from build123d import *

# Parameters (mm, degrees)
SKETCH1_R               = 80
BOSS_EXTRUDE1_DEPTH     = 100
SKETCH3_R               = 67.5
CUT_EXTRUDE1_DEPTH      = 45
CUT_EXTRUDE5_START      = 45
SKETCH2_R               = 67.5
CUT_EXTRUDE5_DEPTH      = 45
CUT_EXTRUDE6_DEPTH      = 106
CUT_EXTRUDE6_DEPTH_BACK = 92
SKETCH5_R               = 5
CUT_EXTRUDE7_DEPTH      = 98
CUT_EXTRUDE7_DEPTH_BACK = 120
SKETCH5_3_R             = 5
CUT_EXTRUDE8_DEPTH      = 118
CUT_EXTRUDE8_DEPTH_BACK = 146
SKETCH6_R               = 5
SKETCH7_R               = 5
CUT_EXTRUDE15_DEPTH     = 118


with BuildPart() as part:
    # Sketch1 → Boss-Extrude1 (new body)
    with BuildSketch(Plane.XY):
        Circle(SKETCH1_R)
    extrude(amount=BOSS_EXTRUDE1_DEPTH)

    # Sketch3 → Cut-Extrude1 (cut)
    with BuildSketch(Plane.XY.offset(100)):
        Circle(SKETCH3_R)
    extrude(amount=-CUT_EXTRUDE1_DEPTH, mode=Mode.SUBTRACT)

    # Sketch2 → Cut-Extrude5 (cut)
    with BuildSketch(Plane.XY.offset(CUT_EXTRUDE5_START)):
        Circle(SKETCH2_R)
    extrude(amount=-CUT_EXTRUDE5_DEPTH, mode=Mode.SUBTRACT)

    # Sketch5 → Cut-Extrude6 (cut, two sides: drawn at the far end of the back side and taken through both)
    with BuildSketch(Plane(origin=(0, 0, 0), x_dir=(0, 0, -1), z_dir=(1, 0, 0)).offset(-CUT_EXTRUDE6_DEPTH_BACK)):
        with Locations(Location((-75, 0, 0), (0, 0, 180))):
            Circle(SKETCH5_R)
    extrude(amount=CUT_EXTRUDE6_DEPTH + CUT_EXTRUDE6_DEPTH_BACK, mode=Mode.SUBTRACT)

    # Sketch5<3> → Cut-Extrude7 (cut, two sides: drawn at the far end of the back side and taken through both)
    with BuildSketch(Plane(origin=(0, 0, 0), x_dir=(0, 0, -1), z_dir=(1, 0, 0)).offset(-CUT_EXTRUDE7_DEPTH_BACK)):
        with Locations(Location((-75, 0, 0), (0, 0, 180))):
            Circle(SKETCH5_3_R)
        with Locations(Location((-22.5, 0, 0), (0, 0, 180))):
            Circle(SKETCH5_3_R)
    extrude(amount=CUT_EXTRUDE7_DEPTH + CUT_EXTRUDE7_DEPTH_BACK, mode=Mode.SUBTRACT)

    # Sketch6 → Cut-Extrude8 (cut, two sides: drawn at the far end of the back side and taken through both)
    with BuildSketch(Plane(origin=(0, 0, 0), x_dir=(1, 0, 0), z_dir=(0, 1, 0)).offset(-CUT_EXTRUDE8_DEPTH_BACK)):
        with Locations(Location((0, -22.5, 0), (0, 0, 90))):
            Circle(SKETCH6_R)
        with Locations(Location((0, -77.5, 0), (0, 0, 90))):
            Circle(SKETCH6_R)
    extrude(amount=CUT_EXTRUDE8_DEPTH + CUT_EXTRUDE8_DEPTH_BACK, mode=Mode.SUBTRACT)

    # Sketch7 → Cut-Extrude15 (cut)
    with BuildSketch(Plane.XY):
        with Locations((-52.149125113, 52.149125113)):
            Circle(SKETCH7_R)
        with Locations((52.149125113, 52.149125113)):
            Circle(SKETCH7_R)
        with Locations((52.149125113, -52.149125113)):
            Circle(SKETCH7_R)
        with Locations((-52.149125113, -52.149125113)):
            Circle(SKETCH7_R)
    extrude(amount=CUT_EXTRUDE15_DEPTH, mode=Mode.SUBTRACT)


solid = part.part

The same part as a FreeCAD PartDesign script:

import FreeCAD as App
import Part
import Sketcher
from FreeCAD import Vector

doc = App.newDocument("Part")
params = doc.addObject("Spreadsheet::Sheet", "Params")
for row, (alias, value) in enumerate([
    ("sketch1_diameter", "160 mm"),
    ("pad1_length", "100 mm"),
    ("sketch2_diameter", "135 mm"),
    ("pocket1_length", "45 mm"),
    ("sketch3_diameter", "135 mm"),
    ("pocket2_length", "45 mm"),
    ("sketch4_diameter", "10 mm"),
    ("sketch5_diameter", "10 mm"),
    ("sketch6_diameter", "10 mm"),
    ("sketch7_diameter", "10 mm"),
    ("pocket6_length", "118 mm"),
], start=1):
    params.set(f"A{row}", alias)
    params.set(f"B{row}", "=" + value)
    params.setAlias(f"B{row}", alias)

body = doc.addObject("PartDesign::Body", "Body")

sketch1 = doc.addObject("Sketcher::SketchObject", "Sketch")
body.addObject(sketch1)
sketch1.AttachmentSupport = (doc.XY_Plane, [""])
sketch1.MapMode = "FlatFace"
sketch1.addGeometry(Part.Circle(Vector(0, 0, 0), Vector(0, 0, 1), 80), False)
sketch1.addConstraint([
    Sketcher.Constraint("Coincident", 0, 3, -1, 1),
    Sketcher.Constraint("Diameter", 0, 160.0),
])
sketch1.setExpression("Constraints[1]", "Params.sketch1_diameter")
pad1 = doc.addObject("PartDesign::Pad", "Pad")
body.addObject(pad1)
pad1.Profile = sketch1
pad1.setExpression("Length", "Params.pad1_length")

sketch2 = doc.addObject("Sketcher::SketchObject", "Sketch001")
body.addObject(sketch2)
sketch2.AttachmentSupport = (doc.XY_Plane, [""])
sketch2.MapMode = "FlatFace"
sketch2.AttachmentOffset = App.Placement(Vector(0, 0, 100), App.Rotation())
sketch2.addGeometry(Part.Circle(Vector(0, 0, 0), Vector(0, 0, 1), 68), False)
sketch2.addConstraint([
    Sketcher.Constraint("Coincident", 0, 3, -1, 1),
    Sketcher.Constraint("Diameter", 0, 135.0),
])
sketch2.setExpression("Constraints[1]", "Params.sketch2_diameter")
pocket1 = doc.addObject("PartDesign::Pocket", "Pocket")
body.addObject(pocket1)
pocket1.Profile = sketch2
pocket1.setExpression("Length", "Params.pocket1_length")

sketch3 = doc.addObject("Sketcher::SketchObject", "Sketch002")
body.addObject(sketch3)
sketch3.AttachmentSupport = (doc.XY_Plane, [""])
sketch3.MapMode = "FlatFace"
sketch3.AttachmentOffset = App.Placement(Vector(0, 0, 45), App.Rotation())
sketch3.addGeometry(Part.Circle(Vector(0, 0, 0), Vector(0, 0, 1), 68), False)
sketch3.addConstraint([
    Sketcher.Constraint("Coincident", 0, 3, -1, 1),
    Sketcher.Constraint("Diameter", 0, 135.0),
])
sketch3.setExpression("Constraints[1]", "Params.sketch3_diameter")
pocket2 = doc.addObject("PartDesign::Pocket", "Pocket001")
body.addObject(pocket2)
pocket2.Profile = sketch3
pocket2.setExpression("Length", "Params.pocket2_length")

sketch4 = doc.addObject("Sketcher::SketchObject", "Sketch003")
body.addObject(sketch4)
sketch4.AttachmentSupport = (doc.YZ_Plane, [""])
sketch4.MapMode = "FlatFace"
sketch4.addGeometry(Part.Circle(Vector(0, 75, 0), Vector(0, 0, 1), 5), False)
sketch4.addConstraint([
    Sketcher.Constraint("PointOnObject", 0, 3, -2),
    Sketcher.Constraint("Diameter", 0, 10.0),
    Sketcher.Constraint("DistanceY", -1, 1, 0, 3, 75.0),
])
sketch4.setExpression("Constraints[1]", "Params.sketch4_diameter")
pocket3 = doc.addObject("PartDesign::Pocket", "Pocket002")
body.addObject(pocket3)
pocket3.Profile = sketch4
pocket3.Type = "ThroughAll"
pocket3.Midplane = True

sketch5 = doc.addObject("Sketcher::SketchObject", "Sketch004")
body.addObject(sketch5)
sketch5.AttachmentSupport = (doc.YZ_Plane, [""])
sketch5.MapMode = "FlatFace"
sketch5.addGeometry([
    Part.Circle(Vector(0, 75, 0), Vector(0, 0, 1), 5),
    Part.Circle(Vector(0, 22, 0), Vector(0, 0, 1), 5),
], False)
sketch5.addConstraint([
    Sketcher.Constraint("Equal", 0, 1),
    Sketcher.Constraint("PointOnObject", 0, 3, -2),
    Sketcher.Constraint("PointOnObject", 1, 3, -2),
    Sketcher.Constraint("Diameter", 0, 10.0),
    Sketcher.Constraint("DistanceY", -1, 1, 0, 3, 75.0),
    Sketcher.Constraint("DistanceY", -1, 1, 1, 3, 22.5),
])
sketch5.setExpression("Constraints[3]", "Params.sketch5_diameter")
pocket4 = doc.addObject("PartDesign::Pocket", "Pocket003")
body.addObject(pocket4)
pocket4.Profile = sketch5
pocket4.Type = "ThroughAll"
pocket4.Midplane = True

sketch6 = doc.addObject("Sketcher::SketchObject", "Sketch005")
body.addObject(sketch6)
sketch6.AttachmentSupport = (doc.XZ_Plane, [""])
sketch6.MapMode = "FlatFace"
sketch6.addGeometry([
    Part.Circle(Vector(0, 22, 0), Vector(0, 0, 1), 5),
    Part.Circle(Vector(0, 78, 0), Vector(0, 0, 1), 5),
], False)
sketch6.addConstraint([
    Sketcher.Constraint("Equal", 0, 1),
    Sketcher.Constraint("PointOnObject", 0, 3, -2),
    Sketcher.Constraint("PointOnObject", 1, 3, -2),
    Sketcher.Constraint("Diameter", 0, 10.0),
    Sketcher.Constraint("DistanceY", 0, 3, 1, 3, 55.0),
    Sketcher.Constraint("DistanceY", -1, 1, 0, 3, 22.5),
])
sketch6.setExpression("Constraints[3]", "Params.sketch6_diameter")
pocket5 = doc.addObject("PartDesign::Pocket", "Pocket004")
body.addObject(pocket5)
pocket5.Profile = sketch6
pocket5.Type = "ThroughAll"
pocket5.Midplane = True

sketch7 = doc.addObject("Sketcher::SketchObject", "Sketch006")
body.addObject(sketch7)
sketch7.AttachmentSupport = (doc.XY_Plane, [""])
sketch7.MapMode = "FlatFace"
sketch7.addGeometry([
    Part.Circle(Vector(-52, 52, 0), Vector(0, 0, 1), 5),
    Part.Circle(Vector(52, 52, 0), Vector(0, 0, 1), 5),
    Part.Circle(Vector(52, -52, 0), Vector(0, 0, 1), 5),
    Part.Circle(Vector(-52, -52, 0), Vector(0, 0, 1), 5),
], False)
sketch7.addConstraint([
    Sketcher.Constraint("Equal", 0, 1),
    Sketcher.Constraint("Equal", 1, 2),
    Sketcher.Constraint("Equal", 2, 3),
    Sketcher.Constraint("Symmetric", 0, 3, 2, 3, -1, 1),
    Sketcher.Constraint("Symmetric", 1, 3, 3, 3, -1, 1),
    Sketcher.Constraint("Symmetric", 0, 3, 1, 3, -2),
    Sketcher.Constraint("Diameter", 0, 10.0),
    Sketcher.Constraint("DistanceX", 0, 3, 1, 3, 104.29825),
    Sketcher.Constraint("DistanceY", 2, 3, 1, 3, 104.29825),
])
sketch7.setExpression("Constraints[6]", "Params.sketch7_diameter")
pocket6 = doc.addObject("PartDesign::Pocket", "Pocket005")
body.addObject(pocket6)
pocket6.Profile = sketch7
pocket6.setExpression("Length", "Params.pocket6_length")
pocket6.Reversed = True

doc.recompute()
